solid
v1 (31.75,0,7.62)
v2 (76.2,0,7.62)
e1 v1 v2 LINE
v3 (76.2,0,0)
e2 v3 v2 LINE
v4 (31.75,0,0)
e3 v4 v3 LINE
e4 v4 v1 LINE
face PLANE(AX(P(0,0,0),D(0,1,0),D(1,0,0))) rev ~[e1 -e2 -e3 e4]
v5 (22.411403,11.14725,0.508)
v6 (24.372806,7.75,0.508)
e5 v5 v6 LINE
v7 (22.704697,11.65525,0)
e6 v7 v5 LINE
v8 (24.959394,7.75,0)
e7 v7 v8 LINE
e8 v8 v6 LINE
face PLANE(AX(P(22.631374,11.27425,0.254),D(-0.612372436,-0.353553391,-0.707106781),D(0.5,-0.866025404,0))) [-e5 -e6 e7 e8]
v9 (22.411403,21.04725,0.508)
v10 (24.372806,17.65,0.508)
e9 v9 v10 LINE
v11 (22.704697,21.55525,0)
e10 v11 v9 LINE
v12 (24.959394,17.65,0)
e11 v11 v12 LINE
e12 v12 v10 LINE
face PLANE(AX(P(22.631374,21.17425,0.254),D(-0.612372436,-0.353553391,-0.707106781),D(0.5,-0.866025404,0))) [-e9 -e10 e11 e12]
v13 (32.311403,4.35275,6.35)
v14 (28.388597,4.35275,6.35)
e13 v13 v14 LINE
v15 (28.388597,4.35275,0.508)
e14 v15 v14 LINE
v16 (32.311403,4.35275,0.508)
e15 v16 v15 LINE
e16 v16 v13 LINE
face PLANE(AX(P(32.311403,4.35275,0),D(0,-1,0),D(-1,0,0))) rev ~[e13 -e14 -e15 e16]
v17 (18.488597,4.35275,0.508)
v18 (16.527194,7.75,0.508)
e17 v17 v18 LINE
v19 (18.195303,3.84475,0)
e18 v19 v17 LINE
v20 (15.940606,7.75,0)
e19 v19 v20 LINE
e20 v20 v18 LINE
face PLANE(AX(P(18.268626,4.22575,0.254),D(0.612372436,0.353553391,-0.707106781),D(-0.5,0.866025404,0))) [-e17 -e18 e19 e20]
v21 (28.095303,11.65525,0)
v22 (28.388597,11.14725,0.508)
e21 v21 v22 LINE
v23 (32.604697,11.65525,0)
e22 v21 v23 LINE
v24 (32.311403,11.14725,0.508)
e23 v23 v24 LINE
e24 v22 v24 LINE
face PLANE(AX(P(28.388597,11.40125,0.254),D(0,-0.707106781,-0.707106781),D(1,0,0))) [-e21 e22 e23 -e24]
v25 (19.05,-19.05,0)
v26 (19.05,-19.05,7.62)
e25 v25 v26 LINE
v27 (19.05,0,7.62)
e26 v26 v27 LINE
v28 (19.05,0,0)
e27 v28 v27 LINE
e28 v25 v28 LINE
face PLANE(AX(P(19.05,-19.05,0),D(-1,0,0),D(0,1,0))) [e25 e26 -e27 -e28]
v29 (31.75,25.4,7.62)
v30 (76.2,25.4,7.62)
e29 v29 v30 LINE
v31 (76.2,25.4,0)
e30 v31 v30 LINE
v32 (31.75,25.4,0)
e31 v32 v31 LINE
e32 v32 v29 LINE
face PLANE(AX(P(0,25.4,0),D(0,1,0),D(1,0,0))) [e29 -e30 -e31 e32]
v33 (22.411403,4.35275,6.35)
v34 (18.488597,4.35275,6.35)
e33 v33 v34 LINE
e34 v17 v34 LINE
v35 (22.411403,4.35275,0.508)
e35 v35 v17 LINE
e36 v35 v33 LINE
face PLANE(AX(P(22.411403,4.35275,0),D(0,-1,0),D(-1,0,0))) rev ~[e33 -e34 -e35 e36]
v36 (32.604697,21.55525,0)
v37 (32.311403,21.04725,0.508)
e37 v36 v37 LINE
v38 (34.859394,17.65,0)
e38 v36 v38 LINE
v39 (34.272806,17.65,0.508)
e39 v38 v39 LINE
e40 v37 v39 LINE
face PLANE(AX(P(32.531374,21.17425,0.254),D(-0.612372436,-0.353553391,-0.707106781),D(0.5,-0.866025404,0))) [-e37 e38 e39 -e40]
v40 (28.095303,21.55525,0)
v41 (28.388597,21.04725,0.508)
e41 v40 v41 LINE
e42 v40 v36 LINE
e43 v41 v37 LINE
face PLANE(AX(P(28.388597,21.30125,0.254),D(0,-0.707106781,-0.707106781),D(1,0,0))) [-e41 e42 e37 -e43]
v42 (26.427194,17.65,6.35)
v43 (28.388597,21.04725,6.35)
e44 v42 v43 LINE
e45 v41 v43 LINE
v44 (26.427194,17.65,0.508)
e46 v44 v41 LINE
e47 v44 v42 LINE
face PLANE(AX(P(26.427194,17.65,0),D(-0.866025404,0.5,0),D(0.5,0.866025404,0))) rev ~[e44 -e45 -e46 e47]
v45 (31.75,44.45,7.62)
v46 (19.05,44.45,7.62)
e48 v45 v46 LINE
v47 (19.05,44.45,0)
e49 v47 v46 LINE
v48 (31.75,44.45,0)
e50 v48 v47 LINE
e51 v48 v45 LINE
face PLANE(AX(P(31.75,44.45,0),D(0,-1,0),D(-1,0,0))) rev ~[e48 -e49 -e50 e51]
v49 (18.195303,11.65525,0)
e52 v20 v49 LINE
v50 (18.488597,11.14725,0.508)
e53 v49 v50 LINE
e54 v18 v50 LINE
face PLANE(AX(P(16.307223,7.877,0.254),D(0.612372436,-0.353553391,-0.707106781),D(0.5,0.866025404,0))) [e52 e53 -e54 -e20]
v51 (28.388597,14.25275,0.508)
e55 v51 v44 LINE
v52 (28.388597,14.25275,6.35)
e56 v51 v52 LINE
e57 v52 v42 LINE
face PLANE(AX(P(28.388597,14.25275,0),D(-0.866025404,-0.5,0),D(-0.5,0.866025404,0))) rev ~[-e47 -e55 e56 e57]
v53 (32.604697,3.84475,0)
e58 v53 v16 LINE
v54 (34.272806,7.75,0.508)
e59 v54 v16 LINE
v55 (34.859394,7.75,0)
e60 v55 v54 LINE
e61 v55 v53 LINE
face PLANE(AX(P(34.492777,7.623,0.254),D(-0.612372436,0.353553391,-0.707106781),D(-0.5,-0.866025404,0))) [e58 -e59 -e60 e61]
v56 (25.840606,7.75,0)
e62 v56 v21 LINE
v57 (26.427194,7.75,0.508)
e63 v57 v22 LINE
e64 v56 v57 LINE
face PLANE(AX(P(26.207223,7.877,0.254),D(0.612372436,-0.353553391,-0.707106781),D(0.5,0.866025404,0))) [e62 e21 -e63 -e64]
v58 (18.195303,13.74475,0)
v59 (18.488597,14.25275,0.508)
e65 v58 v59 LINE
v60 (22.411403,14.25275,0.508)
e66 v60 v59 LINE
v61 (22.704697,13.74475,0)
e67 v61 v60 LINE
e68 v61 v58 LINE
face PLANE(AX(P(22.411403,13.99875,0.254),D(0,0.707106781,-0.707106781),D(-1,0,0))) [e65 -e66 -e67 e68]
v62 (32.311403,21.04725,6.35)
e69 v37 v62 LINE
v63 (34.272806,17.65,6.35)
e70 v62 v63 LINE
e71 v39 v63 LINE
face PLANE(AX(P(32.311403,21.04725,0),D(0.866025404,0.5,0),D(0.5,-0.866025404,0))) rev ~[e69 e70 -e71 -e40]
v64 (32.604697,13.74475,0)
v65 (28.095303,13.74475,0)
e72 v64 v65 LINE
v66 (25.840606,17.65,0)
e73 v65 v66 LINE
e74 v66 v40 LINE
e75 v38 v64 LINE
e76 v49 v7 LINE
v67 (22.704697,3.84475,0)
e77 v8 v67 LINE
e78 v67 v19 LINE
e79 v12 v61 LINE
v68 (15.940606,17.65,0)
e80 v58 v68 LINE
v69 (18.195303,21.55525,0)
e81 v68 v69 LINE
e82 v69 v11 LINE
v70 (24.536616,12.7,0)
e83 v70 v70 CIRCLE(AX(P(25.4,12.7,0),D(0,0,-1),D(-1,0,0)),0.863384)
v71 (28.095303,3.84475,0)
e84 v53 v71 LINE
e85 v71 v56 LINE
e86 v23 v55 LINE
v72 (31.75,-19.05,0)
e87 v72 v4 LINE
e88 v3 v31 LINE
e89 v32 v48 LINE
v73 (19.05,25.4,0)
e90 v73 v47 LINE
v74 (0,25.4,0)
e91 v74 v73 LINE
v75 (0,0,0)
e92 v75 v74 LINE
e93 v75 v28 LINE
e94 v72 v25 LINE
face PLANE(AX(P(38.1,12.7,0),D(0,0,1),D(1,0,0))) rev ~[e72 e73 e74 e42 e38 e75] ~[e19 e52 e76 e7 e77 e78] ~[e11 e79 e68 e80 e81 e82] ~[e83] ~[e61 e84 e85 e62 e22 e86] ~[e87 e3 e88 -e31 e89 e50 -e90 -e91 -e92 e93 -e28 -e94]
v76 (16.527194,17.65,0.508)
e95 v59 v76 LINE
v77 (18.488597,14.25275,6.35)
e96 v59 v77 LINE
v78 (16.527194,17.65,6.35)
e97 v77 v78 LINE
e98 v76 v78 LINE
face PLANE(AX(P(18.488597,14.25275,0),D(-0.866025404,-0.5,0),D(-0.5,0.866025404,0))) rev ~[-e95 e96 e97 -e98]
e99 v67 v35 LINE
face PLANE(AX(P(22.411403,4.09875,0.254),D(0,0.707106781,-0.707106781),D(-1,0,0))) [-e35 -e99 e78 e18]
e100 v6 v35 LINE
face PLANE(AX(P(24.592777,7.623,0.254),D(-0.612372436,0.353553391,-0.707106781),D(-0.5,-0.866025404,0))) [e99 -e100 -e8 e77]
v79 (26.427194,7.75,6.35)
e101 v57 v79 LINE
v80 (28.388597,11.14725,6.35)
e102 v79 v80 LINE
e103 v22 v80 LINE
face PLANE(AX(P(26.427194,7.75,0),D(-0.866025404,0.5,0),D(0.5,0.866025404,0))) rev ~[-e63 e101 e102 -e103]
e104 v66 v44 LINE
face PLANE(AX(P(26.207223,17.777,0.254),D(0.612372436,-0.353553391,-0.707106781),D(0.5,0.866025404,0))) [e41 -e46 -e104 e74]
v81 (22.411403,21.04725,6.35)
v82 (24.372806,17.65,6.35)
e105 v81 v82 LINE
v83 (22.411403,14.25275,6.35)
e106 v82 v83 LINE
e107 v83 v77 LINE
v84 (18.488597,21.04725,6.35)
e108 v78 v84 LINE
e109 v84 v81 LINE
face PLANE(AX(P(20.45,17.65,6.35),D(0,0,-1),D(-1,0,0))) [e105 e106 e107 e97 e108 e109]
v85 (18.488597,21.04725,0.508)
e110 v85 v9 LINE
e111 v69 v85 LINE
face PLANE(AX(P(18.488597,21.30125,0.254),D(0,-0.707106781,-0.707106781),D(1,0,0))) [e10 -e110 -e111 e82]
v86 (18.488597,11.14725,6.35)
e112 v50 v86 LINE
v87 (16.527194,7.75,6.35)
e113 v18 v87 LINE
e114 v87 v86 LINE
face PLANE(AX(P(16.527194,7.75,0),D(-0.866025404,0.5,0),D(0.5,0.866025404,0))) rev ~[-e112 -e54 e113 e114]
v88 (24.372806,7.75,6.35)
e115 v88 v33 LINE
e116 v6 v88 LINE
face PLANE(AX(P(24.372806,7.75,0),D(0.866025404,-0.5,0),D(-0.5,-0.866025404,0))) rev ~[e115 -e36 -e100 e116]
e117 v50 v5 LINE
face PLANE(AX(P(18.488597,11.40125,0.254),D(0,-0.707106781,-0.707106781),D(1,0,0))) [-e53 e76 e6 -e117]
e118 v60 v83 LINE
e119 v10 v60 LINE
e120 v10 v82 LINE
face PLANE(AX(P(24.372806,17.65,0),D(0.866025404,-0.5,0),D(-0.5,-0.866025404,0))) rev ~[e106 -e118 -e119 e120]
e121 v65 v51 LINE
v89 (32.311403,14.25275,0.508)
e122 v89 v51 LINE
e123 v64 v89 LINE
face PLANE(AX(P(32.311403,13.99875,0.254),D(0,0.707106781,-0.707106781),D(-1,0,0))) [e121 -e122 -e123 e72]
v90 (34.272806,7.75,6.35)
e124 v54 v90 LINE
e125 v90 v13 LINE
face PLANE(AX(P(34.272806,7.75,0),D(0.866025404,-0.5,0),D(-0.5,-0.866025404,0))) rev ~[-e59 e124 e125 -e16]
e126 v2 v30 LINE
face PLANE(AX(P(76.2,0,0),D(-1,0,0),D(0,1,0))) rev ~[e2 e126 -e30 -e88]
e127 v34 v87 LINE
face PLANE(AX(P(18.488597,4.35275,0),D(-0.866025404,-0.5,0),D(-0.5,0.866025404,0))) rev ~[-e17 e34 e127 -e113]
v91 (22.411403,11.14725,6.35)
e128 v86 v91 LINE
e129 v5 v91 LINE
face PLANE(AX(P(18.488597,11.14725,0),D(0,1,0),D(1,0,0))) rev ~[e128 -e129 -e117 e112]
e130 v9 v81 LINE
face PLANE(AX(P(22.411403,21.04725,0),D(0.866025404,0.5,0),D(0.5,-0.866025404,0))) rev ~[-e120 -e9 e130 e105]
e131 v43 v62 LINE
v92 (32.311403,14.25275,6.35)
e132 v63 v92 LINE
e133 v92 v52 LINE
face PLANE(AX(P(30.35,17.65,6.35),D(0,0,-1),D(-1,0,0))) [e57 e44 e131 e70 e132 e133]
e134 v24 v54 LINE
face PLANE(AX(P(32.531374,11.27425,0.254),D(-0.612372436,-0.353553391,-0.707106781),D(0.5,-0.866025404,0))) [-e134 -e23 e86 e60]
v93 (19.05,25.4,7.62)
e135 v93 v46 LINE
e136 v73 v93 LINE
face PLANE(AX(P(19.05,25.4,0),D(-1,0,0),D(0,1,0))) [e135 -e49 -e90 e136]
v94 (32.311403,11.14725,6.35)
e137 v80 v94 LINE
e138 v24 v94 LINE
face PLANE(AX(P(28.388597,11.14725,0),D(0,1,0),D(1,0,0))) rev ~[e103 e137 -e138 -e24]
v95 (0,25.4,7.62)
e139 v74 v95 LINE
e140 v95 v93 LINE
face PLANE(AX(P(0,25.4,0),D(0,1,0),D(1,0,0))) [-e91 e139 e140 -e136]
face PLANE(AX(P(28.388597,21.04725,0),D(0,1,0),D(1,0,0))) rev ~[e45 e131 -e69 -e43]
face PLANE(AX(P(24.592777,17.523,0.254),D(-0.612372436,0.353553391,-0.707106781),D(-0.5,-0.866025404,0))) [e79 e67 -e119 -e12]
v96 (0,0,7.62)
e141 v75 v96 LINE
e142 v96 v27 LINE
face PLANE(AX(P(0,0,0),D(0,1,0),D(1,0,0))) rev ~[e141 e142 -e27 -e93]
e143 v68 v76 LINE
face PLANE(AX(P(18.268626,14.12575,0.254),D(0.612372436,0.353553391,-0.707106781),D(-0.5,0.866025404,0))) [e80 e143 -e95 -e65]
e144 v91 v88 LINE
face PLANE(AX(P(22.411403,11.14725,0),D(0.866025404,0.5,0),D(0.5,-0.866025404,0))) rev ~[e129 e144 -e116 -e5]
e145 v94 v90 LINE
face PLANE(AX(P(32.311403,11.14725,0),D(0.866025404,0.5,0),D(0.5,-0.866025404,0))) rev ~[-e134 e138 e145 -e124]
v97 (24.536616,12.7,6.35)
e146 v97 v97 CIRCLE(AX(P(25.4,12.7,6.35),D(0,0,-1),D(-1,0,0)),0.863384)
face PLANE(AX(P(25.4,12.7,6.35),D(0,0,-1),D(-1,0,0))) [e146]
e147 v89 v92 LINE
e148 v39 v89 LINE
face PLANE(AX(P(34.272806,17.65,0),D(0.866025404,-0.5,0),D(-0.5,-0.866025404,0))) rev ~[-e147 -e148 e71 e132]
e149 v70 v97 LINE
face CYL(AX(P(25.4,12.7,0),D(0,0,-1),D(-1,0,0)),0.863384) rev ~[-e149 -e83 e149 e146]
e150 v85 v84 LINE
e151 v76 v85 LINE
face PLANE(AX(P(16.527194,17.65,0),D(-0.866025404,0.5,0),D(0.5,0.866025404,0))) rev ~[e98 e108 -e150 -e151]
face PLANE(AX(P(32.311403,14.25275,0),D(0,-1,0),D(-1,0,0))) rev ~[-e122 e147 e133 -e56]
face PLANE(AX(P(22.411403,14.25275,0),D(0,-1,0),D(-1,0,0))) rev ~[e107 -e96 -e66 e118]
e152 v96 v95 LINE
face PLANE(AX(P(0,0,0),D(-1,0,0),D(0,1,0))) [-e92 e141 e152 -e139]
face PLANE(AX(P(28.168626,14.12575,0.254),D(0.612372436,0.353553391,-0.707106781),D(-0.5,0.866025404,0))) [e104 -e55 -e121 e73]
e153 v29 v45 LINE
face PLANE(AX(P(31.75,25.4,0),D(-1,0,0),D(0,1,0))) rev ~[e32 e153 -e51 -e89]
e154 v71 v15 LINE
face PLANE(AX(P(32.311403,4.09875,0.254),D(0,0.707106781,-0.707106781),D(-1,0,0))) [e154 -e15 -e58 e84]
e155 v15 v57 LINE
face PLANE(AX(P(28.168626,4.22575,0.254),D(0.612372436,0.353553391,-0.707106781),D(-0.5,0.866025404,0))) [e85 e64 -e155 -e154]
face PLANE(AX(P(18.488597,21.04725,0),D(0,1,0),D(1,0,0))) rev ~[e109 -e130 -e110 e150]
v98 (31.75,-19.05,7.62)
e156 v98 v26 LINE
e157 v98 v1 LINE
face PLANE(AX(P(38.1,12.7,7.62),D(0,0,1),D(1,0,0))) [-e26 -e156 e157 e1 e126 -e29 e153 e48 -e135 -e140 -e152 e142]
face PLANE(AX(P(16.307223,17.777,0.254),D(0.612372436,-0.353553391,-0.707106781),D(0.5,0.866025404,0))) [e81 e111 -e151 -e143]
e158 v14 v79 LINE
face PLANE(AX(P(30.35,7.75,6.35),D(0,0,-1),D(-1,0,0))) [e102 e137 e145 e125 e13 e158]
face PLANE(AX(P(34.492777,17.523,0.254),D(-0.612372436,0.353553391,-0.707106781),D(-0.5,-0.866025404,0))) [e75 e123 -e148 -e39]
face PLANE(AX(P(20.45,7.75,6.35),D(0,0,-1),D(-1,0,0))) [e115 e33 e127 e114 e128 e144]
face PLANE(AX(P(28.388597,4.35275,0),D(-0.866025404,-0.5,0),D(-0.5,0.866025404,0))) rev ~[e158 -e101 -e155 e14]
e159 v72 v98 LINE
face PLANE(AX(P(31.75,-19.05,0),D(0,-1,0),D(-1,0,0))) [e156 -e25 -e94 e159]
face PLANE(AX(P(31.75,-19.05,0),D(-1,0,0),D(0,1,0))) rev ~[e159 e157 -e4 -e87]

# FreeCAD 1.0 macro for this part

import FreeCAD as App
import Part
import Sketcher

V = App.Vector
Q = App.Units.Quantity


def edges_at(feature, points):
    """Names of the edges that pass closest to the given points."""
    edges = feature.Shape.Edges
    near = lambda p: min(range(len(edges)), key=lambda i: edges[i].distToShape(Part.Vertex(*p))[0])
    return sorted({f"Edge{near(p) + 1}" for p in points})


def add_polygon(sketch, points):
    """Adds a closed chain of lines whose ends are joined by coincident constraints."""
    first, n = sketch.GeometryCount, len(points)
    for a, b in zip(points, points[1:] + points[:1]):
        sketch.addGeometry(Part.LineSegment(App.Vector(*a, 0), App.Vector(*b, 0)), False)
    for i in range(n):
        sketch.addConstraint(Sketcher.Constraint("Coincident", first + i, 2, first + (i + 1) % n, 1))

doc = App.newDocument("Part")
body = doc.addObject("PartDesign::Body", "Body")

sketch1 = doc.addObject("Sketcher::SketchObject", "Sketch")
body.addObject(sketch1)
sketch1.AttachmentSupport = (doc.XY_Plane, [""])
sketch1.MapMode = "FlatFace"
add_polygon(sketch1, [(0, 25.4), (0, 0), (76.2, 0), (76.2, 25.4)])
sketch1.addConstraint([
    Sketcher.Constraint("Vertical", 0),
    Sketcher.Constraint("Horizontal", 1),
    Sketcher.Constraint("Vertical", 2),
    Sketcher.Constraint("Horizontal", 3),
    Sketcher.Constraint("Coincident", 0, 2, -1, 1),
    Sketcher.Constraint("DistanceX", 1, 1, 1, 2, Q("3 in")),
    Sketcher.Constraint("DistanceY", 0, 2, 0, 1, Q("1 in")),
])
pad1 = doc.addObject("PartDesign::Pad", "Pad")
body.addObject(pad1)
pad1.Profile = sketch1
pad1.Length = Q("0.3 in")

sketch2 = doc.addObject("Sketcher::SketchObject", "Sketch001")
body.addObject(sketch2)
sketch2.AttachmentSupport = (doc.XY_Plane, [""])
sketch2.MapMode = "FlatFace"
sketch2.addGeometry(Part.Circle(V(25.4, 12.7, 0), V(0, 0, 1), 0.863384), False)
add_polygon(sketch2, [(28.388597, 21.04725), (32.311403, 21.04725), (34.272806, 17.65), (32.311403, 14.25275), (28.388597, 14.25275), (26.427194, 17.65)])
add_polygon(sketch2, [(18.488597, 21.04725), (22.411403, 21.04725), (24.372806, 17.65), (22.411403, 14.25275), (18.488597, 14.25275), (16.527194, 17.65)])
add_polygon(sketch2, [(18.488597, 11.14725), (22.411403, 11.14725), (24.372806, 7.75), (22.411403, 4.35275), (18.488597, 4.35275), (16.527194, 7.75)])
add_polygon(sketch2, [(28.388597, 11.14725), (32.311403, 11.14725), (34.272806, 7.75), (32.311403, 4.35275), (28.388597, 4.35275), (26.427194, 7.75)])
sketch2.addConstraint([
    Sketcher.Constraint("Horizontal", 1),
    Sketcher.Constraint("Horizontal", 4),
    Sketcher.Constraint("Horizontal", 7),
    Sketcher.Constraint("Horizontal", 10),
    Sketcher.Constraint("Horizontal", 13),
    Sketcher.Constraint("Horizontal", 16),
    Sketcher.Constraint("Horizontal", 19),
    Sketcher.Constraint("Horizontal", 22),
    Sketcher.Constraint("Parallel", 2, 5),
    Sketcher.Constraint("Parallel", 3, 6),
    Sketcher.Constraint("Parallel", 5, 8),
    Sketcher.Constraint("Parallel", 6, 9),
    Sketcher.Constraint("Parallel", 8, 11),
    Sketcher.Constraint("Parallel", 9, 12),
    Sketcher.Constraint("Parallel", 11, 14),
    Sketcher.Constraint("Parallel", 12, 15),
    Sketcher.Constraint("Parallel", 14, 17),
    Sketcher.Constraint("Parallel", 15, 18),
    Sketcher.Constraint("Parallel", 17, 20),
    Sketcher.Constraint("Parallel", 18, 21),
    Sketcher.Constraint("Parallel", 20, 23),
    Sketcher.Constraint("Parallel", 21, 24),
    Sketcher.Constraint("Horizontal", 2, 2, 5, 2),
    Sketcher.Constraint("Horizontal", 6, 2, 7, 2),
    Sketcher.Constraint("Horizontal", 5, 2, 8, 2),
    Sketcher.Constraint("Horizontal", 4, 2, 9, 2),
    Sketcher.Constraint("Horizontal", 8, 2, 11, 2),
    Sketcher.Constraint("Horizontal", 14, 2, 17, 2),
    Sketcher.Constraint("Horizontal", 18, 2, 19, 2),
    Sketcher.Constraint("Horizontal", 17, 2, 20, 2),
    Sketcher.Constraint("Horizontal", 16, 2, 21, 2),
    Sketcher.Constraint("Horizontal", 20, 2, 23, 2),
    Sketcher.Constraint("Vertical", 1, 2, 3, 2),
    Sketcher.Constraint("Vertical", 4, 2, 6, 2),
    Sketcher.Constraint("Vertical", 9, 2, 13, 2),
    Sketcher.Constraint("Vertical", 8, 2, 14, 2),
    Sketcher.Constraint("Vertical", 13, 2, 15, 2),
    Sketcher.Constraint("Vertical", 12, 2, 16, 2),
    Sketcher.Constraint("Vertical", 3, 2, 19, 2),
    Sketcher.Constraint("Vertical", 6, 2, 22, 2),
    Sketcher.Constraint("Equal", 4, 7),
    Sketcher.Constraint("DistanceX", -1, 1, 0, 3, Q("1 in")),
    Sketcher.Constraint("Angle", 2, Q("-60 deg")),
    Sketcher.Constraint("DistanceY", -1, 1, 0, 3, Q("0.5 in")),
    Sketcher.Constraint("Diameter", 0, Q("1.726769 mm")),
    Sketcher.Constraint("DistanceY", 3, 2, 1, 2, Q("0.2675 in")),
    Sketcher.Constraint("DistanceY", -1, 1, 2, 2, Q("17.65 mm")),
    Sketcher.Constraint("DistanceY", -1, 1, 14, 2, Q("7.75 mm")),
    Sketcher.Constraint("DistanceX", 7, 2, 1, 2, Q("9.9 mm")),
    Sketcher.Constraint("DistanceX", 1, 1, 1, 2, Q("3.922806 mm")),
    Sketcher.Constraint("DistanceX", -1, 1, 1, 2, Q("32.311403 mm")),
])
pocket1 = doc.addObject("PartDesign::Pocket", "Pocket")
body.addObject(pocket1)
pocket1.Profile = sketch2
pocket1.Length = Q("0.25 in")
pocket1.Reversed = True
doc.recompute()

chamfer = doc.addObject("PartDesign::Chamfer", "Chamfer")
body.addObject(chamfer)
chamfer.Base = (pocket1, edges_at(pocket1, [
    (27.408, 9.449, 0),
    (30.35, 11.147, 0),
    (33.292, 9.449, 0),
    (33.292, 6.051, 0),
    (30.35, 4.353, 0),
    (27.408, 6.051, 0),
    (17.508, 9.449, 0),
    (20.45, 11.147, 0),
    (23.392, 9.449, 0),
    (23.392, 6.051, 0),
    (20.45, 4.353, 0),
    (17.508, 6.051, 0),
    (17.508, 19.349, 0),
    (20.45, 21.047, 0),
    (23.392, 19.349, 0),
    (23.392, 15.951, 0),
    (20.45, 14.253, 0),
    (17.508, 15.951, 0),
    (27.408, 19.349, 0),
    (30.35, 21.047, 0),
    (33.292, 19.349, 0),
    (33.292, 15.951, 0),
    (30.35, 14.253, 0),
    (27.408, 15.951, 0),
]))
chamfer.Size = Q("0.02 in")

sketch3 = doc.addObject("Sketcher::SketchObject", "Sketch002")
body.addObject(sketch3)
sketch3.AttachmentSupport = (doc.XY_Plane, [""])
sketch3.MapMode = "FlatFace"
add_polygon(sketch3, [(31.75, 0), (31.75, -19.05), (19.05, -19.05), (19.05, 0)])
add_polygon(sketch3, [(31.75, 44.45), (31.75, 25.4), (19.05, 25.4), (19.05, 44.45)])
sketch3.addConstraint([
    Sketcher.Constraint("Vertical", 0),
    Sketcher.Constraint("Horizontal", 1),
    Sketcher.Constraint("Vertical", 2),
    Sketcher.Constraint("Horizontal", 3),
    Sketcher.Constraint("Vertical", 4),
    Sketcher.Constraint("Horizontal", 5),
    Sketcher.Constraint("Vertical", 6),
    Sketcher.Constraint("Horizontal", 7),
    Sketcher.Constraint("PointOnObject", 2, 2, -1),
    Sketcher.Constraint("Vertical", 3, 2, 4, 2),
    Sketcher.Constraint("Vertical", 2, 2, 5, 2),
    Sketcher.Constraint("Equal", 2, 4),
    Sketcher.Constraint("DistanceX", 1, 2, 1, 1, Q("0.5 in")),
    Sketcher.Constraint("DistanceY", -1, 1, 4, 2, Q("1 in")),
    Sketcher.Constraint("DistanceY", 0, 2, 0, 1, Q("0.75 in")),
    Sketcher.Constraint("DistanceX", -1, 1, 0, 2, Q("1.25 in")),
])
pad2 = doc.addObject("PartDesign::Pad", "Pad001")
body.addObject(pad2)
pad2.Profile = sketch3
pad2.Length = Q("0.3 in")

doc.recompute()
